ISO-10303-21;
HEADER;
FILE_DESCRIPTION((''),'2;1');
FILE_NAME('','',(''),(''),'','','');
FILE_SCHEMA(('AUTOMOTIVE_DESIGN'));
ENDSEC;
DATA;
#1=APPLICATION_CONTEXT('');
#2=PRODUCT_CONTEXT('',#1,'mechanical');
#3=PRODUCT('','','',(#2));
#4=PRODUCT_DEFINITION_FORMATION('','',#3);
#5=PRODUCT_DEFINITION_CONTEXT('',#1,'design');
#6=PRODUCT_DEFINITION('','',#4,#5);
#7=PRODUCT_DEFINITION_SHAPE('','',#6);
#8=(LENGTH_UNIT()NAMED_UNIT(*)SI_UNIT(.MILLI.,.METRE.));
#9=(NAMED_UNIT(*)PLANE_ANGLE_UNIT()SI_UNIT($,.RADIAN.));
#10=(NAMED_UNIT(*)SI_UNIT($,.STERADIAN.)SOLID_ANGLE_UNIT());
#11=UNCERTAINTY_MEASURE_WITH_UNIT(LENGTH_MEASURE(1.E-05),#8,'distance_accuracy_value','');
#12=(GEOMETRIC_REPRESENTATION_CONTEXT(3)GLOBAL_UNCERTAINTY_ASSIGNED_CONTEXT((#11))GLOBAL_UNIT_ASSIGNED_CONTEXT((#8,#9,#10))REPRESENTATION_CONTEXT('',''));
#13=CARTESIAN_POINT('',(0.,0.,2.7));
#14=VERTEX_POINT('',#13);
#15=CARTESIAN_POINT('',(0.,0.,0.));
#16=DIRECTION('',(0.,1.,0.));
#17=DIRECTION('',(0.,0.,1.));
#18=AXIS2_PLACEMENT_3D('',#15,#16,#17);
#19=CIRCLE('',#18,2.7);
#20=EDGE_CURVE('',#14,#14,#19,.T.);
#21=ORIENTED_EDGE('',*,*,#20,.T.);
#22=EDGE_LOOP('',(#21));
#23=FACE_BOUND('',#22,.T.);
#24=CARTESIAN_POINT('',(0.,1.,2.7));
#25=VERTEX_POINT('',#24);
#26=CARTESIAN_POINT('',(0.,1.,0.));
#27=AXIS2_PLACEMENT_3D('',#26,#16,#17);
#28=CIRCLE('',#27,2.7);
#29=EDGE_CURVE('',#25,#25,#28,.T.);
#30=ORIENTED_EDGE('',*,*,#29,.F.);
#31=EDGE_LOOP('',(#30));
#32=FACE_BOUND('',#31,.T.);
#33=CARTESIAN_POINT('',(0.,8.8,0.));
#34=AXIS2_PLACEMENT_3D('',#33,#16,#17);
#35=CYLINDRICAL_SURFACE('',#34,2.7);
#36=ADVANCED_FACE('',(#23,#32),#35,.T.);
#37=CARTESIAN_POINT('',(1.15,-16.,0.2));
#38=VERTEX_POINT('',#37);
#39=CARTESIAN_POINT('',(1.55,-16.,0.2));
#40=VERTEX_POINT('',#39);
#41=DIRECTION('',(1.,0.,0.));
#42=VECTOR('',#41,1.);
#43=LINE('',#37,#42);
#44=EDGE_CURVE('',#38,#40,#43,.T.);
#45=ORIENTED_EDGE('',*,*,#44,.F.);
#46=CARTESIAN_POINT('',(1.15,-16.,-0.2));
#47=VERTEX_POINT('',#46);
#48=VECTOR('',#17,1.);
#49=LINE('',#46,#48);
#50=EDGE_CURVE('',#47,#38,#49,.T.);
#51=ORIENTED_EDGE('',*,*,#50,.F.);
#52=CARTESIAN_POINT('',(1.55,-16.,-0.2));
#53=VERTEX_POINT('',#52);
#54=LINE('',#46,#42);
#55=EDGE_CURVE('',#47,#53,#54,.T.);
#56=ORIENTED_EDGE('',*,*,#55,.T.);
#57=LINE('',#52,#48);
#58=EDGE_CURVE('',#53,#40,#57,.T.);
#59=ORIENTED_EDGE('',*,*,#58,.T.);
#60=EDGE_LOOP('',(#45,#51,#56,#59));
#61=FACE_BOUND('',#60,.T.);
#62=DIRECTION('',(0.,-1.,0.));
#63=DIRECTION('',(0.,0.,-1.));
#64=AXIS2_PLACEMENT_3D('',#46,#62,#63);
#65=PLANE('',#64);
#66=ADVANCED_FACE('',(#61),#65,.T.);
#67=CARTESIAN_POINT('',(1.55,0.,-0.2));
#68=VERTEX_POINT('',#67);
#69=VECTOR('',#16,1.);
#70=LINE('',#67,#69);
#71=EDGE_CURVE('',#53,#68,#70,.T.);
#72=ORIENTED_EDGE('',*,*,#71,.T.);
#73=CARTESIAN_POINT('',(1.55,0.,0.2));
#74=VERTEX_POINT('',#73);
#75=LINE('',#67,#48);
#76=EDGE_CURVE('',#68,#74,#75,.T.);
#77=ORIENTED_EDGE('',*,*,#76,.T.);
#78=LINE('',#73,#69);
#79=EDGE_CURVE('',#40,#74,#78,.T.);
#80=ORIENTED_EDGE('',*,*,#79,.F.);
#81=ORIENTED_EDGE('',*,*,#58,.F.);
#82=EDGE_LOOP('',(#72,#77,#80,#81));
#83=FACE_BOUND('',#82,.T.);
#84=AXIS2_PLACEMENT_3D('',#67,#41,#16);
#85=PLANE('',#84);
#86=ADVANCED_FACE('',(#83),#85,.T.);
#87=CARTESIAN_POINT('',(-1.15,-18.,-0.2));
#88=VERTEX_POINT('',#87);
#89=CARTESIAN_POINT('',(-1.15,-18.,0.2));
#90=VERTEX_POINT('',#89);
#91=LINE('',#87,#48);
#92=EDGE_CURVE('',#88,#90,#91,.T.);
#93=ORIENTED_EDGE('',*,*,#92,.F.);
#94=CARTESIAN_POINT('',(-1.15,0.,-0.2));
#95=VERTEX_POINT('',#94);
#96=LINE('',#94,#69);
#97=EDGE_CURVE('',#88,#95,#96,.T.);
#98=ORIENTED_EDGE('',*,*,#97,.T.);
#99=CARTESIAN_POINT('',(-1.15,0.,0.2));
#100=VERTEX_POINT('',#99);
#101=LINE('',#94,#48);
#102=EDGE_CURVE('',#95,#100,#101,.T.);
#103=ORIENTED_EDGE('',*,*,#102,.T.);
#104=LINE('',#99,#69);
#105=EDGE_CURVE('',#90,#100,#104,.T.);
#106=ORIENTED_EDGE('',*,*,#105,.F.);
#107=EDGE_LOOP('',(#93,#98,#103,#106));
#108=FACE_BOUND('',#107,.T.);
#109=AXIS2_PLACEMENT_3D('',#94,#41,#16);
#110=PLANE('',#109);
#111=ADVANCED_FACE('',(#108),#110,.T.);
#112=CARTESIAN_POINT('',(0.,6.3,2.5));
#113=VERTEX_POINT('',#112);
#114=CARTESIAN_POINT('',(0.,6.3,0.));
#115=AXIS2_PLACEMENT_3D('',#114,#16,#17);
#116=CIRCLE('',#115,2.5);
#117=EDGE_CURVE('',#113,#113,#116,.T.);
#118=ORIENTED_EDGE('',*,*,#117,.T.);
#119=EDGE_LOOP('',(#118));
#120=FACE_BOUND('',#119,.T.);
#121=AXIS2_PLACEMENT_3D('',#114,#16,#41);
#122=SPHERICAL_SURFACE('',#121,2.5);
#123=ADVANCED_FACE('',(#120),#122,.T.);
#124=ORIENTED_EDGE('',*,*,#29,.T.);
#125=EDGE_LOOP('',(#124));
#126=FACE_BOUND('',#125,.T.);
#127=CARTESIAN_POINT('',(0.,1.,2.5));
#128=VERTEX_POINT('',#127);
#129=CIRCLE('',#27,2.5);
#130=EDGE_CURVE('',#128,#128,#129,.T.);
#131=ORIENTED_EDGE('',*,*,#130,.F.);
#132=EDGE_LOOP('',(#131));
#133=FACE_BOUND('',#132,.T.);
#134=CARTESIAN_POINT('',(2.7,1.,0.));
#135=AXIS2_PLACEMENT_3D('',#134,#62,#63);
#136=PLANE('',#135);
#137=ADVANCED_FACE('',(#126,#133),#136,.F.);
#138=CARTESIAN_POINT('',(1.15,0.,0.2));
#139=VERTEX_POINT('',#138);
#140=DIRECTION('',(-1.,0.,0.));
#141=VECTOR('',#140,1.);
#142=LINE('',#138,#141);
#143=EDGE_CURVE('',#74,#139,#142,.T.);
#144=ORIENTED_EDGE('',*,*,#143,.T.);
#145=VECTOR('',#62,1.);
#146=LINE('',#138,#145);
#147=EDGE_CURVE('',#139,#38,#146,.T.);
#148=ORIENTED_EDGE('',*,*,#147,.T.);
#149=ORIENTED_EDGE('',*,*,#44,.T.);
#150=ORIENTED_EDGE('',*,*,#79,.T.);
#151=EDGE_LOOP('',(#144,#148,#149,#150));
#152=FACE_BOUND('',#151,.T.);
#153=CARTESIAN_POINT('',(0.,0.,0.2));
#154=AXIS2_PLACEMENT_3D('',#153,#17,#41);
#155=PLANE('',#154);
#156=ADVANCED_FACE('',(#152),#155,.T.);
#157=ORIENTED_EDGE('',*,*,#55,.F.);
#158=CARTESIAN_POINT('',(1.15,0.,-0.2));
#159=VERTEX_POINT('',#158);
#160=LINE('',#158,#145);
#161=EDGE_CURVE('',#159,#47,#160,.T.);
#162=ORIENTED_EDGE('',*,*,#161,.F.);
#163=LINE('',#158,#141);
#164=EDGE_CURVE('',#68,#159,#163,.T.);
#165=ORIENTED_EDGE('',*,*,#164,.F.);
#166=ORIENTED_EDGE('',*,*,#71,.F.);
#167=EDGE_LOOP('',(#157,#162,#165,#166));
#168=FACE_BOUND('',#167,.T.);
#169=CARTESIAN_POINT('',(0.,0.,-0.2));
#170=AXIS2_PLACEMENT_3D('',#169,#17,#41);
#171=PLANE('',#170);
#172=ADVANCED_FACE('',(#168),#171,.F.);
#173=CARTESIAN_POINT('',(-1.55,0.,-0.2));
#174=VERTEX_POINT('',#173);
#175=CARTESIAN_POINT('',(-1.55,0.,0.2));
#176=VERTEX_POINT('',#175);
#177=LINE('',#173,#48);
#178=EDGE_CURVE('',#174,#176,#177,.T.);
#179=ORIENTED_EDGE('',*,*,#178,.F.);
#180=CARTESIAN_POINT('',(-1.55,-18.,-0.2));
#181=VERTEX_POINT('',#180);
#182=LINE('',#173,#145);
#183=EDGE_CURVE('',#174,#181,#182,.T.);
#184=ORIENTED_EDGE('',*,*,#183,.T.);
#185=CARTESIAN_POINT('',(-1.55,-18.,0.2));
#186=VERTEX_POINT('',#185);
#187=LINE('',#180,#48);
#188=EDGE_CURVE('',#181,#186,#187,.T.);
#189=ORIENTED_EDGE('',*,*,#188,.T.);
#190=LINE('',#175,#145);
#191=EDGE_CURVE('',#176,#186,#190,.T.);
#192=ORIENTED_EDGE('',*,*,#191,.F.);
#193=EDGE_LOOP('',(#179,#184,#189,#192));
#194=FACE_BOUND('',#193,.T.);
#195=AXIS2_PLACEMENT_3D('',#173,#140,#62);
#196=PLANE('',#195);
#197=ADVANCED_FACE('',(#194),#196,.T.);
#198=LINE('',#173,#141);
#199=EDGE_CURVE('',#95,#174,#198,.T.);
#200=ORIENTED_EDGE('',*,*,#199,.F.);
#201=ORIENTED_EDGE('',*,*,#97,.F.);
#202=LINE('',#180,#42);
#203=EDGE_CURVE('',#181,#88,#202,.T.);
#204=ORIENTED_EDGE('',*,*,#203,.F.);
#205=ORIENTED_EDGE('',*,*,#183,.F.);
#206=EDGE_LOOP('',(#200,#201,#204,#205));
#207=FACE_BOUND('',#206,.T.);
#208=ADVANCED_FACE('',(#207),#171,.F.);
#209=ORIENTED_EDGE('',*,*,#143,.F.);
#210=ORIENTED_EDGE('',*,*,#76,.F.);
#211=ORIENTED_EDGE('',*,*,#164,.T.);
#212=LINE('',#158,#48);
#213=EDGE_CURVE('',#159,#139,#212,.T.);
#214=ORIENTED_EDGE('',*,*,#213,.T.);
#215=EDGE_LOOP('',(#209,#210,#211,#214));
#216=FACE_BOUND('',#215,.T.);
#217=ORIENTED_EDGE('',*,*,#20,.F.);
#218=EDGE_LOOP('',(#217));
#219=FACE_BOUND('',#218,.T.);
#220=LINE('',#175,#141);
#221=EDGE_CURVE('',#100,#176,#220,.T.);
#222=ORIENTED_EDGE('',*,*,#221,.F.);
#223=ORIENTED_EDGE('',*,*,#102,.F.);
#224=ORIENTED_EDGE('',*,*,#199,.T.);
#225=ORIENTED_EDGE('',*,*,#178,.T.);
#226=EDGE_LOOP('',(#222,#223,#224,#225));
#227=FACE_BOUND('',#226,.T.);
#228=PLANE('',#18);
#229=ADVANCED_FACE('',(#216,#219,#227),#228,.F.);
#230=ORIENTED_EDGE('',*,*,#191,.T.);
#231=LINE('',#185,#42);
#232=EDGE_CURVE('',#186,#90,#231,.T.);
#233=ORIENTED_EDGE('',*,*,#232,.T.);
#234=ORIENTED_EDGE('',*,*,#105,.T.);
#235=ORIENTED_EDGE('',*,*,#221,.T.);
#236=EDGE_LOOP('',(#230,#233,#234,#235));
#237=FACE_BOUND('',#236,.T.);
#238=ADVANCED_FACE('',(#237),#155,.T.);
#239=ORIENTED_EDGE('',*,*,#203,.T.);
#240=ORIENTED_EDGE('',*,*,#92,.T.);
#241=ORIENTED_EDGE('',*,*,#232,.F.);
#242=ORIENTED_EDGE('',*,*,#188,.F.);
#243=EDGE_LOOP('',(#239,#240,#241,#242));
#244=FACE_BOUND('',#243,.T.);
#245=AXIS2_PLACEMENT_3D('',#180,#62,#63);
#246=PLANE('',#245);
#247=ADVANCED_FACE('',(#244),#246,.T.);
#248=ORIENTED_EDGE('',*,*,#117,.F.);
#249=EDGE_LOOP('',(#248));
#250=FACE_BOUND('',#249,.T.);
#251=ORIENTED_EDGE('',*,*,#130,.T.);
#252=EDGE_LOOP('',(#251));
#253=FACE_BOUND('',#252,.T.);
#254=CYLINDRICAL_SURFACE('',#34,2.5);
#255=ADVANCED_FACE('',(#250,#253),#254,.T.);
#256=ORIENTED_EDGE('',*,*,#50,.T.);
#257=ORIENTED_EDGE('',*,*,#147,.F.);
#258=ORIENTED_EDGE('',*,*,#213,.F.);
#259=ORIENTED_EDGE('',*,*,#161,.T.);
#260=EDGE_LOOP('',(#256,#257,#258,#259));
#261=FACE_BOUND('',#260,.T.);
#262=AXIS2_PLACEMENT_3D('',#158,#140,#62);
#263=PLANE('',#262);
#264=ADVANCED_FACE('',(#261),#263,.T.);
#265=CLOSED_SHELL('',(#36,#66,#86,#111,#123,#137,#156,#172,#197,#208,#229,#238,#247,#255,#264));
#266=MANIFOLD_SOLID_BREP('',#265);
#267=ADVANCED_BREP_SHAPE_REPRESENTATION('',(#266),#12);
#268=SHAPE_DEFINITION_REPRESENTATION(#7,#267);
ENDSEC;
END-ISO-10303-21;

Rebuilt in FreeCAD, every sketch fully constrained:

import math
import FreeCAD as App
import Part
import Sketcher

V = App.Vector

doc = App.newDocument("Part")
body = doc.addObject("PartDesign::Body", "Body")

# Sketch on XY plane
sketch1 = body.newObject("Sketcher::SketchObject", "Sketch")
sketch1.AttachmentSupport = (doc.getObject("XY_Plane"), [""])
sketch1.MapMode = "FlatFace"
sketch1.addGeometry([
    Part.LineSegment(V(0, 0, 0), V(2.7, 0, 0)),  # 0
    Part.LineSegment(V(2.7, 0, 0), V(2.7, 1, 0)),  # 1
    Part.LineSegment(V(2.7, 1, 0), V(2.5, 1, 0)),  # 2
    Part.LineSegment(V(2.5, 1, 0), V(2.5, 6.3, 0)),  # 3
    Part.ArcOfCircle(Part.Circle(V(0, 6.3, 0), V(0, 0, 1), 2.5), math.radians(0), math.radians(90)),  # 4
    Part.LineSegment(V(0, 8.8, 0), V(0, 0, 0)),  # 5
], False)
sketch1.addConstraint([
    Sketcher.Constraint("Coincident", 0, 2, 1, 1),
    Sketcher.Constraint("Coincident", 1, 2, 2, 1),
    Sketcher.Constraint("Coincident", 2, 2, 3, 1),
    Sketcher.Constraint("Tangent", 3, 2, 4, 1),
    Sketcher.Constraint("Coincident", 4, 2, 5, 1),
    Sketcher.Constraint("Coincident", 5, 2, 0, 1),
    Sketcher.Constraint("Horizontal", 0),
    Sketcher.Constraint("Vertical", 1),
    Sketcher.Constraint("Horizontal", 2),
    Sketcher.Constraint("Vertical", 3),
    Sketcher.Constraint("Vertical", 5),
    Sketcher.Constraint("Coincident", 5, 2, -1, 1),
    Sketcher.Constraint("PointOnObject", 4, 3, -2),
    Sketcher.Constraint("Radius", 4, 2.5),
    Sketcher.Constraint("DistanceY", 1, 1, 1, 2, 1.0),
    Sketcher.Constraint("DistanceX", 0, 1, 0, 2, 2.7),
    Sketcher.Constraint("DistanceY", 3, 1, 3, 2, 5.3),
])
revolution = body.newObject("PartDesign::Revolution", "Revolution")
revolution.Profile = sketch1
revolution.ReferenceAxis = (sketch1, ["V_Axis"])
revolution.Angle = 360

# Sketch on XY plane
sketch2 = body.newObject("Sketcher::SketchObject", "Sketch001")
sketch2.AttachmentSupport = (doc.getObject("XY_Plane"), [""])
sketch2.MapMode = "FlatFace"
sketch2.addGeometry([
    Part.LineSegment(V(1.15, 0, 0), V(1.15, -16, 0)),  # 0
    Part.LineSegment(V(1.15, -16, 0), V(1.55, -16, 0)),  # 1
    Part.LineSegment(V(1.55, -16, 0), V(1.55, 0, 0)),  # 2
    Part.LineSegment(V(1.55, 0, 0), V(1.15, 0, 0)),  # 3
    Part.LineSegment(V(-1.55, 0, 0), V(-1.55, -18, 0)),  # 4
    Part.LineSegment(V(-1.55, -18, 0), V(-1.15, -18, 0)),  # 5
    Part.LineSegment(V(-1.15, -18, 0), V(-1.15, 0, 0)),  # 6
    Part.LineSegment(V(-1.15, 0, 0), V(-1.55, 0, 0)),  # 7
], False)
sketch2.addConstraint([
    Sketcher.Constraint("Coincident", 0, 2, 1, 1),
    Sketcher.Constraint("Coincident", 1, 2, 2, 1),
    Sketcher.Constraint("Coincident", 2, 2, 3, 1),
    Sketcher.Constraint("Coincident", 3, 2, 0, 1),
    Sketcher.Constraint("Coincident", 4, 2, 5, 1),
    Sketcher.Constraint("Coincident", 5, 2, 6, 1),
    Sketcher.Constraint("Coincident", 6, 2, 7, 1),
    Sketcher.Constraint("Coincident", 7, 2, 4, 1),
    Sketcher.Constraint("Vertical", 0),
    Sketcher.Constraint("Horizontal", 1),
    Sketcher.Constraint("Vertical", 2),
    Sketcher.Constraint("Horizontal", 3),
    Sketcher.Constraint("Vertical", 4),
    Sketcher.Constraint("Horizontal", 5),
    Sketcher.Constraint("Vertical", 6),
    Sketcher.Constraint("Horizontal", 7),
    Sketcher.Constraint("Symmetric", 3, 2, 6, 2, -1, 1),
    Sketcher.Constraint("Symmetric", 2, 2, 7, 2, -2),
    Sketcher.Constraint("DistanceY", 0, 2, 0, 1, 16.0),
    Sketcher.Constraint("DistanceY", 4, 2, 4, 1, 18.0),
    Sketcher.Constraint("DistanceX", 1, 1, 1, 2, 0.4),
    Sketcher.Constraint("DistanceX", 4, 2, 0, 2, 2.7),
])
pad1 = body.newObject("PartDesign::Pad", "Pad")
pad1.Profile = sketch2
pad1.Type = "TwoLengths"
pad1.Length = 0.2
pad1.Length2 = 0.2

doc.recompute()
